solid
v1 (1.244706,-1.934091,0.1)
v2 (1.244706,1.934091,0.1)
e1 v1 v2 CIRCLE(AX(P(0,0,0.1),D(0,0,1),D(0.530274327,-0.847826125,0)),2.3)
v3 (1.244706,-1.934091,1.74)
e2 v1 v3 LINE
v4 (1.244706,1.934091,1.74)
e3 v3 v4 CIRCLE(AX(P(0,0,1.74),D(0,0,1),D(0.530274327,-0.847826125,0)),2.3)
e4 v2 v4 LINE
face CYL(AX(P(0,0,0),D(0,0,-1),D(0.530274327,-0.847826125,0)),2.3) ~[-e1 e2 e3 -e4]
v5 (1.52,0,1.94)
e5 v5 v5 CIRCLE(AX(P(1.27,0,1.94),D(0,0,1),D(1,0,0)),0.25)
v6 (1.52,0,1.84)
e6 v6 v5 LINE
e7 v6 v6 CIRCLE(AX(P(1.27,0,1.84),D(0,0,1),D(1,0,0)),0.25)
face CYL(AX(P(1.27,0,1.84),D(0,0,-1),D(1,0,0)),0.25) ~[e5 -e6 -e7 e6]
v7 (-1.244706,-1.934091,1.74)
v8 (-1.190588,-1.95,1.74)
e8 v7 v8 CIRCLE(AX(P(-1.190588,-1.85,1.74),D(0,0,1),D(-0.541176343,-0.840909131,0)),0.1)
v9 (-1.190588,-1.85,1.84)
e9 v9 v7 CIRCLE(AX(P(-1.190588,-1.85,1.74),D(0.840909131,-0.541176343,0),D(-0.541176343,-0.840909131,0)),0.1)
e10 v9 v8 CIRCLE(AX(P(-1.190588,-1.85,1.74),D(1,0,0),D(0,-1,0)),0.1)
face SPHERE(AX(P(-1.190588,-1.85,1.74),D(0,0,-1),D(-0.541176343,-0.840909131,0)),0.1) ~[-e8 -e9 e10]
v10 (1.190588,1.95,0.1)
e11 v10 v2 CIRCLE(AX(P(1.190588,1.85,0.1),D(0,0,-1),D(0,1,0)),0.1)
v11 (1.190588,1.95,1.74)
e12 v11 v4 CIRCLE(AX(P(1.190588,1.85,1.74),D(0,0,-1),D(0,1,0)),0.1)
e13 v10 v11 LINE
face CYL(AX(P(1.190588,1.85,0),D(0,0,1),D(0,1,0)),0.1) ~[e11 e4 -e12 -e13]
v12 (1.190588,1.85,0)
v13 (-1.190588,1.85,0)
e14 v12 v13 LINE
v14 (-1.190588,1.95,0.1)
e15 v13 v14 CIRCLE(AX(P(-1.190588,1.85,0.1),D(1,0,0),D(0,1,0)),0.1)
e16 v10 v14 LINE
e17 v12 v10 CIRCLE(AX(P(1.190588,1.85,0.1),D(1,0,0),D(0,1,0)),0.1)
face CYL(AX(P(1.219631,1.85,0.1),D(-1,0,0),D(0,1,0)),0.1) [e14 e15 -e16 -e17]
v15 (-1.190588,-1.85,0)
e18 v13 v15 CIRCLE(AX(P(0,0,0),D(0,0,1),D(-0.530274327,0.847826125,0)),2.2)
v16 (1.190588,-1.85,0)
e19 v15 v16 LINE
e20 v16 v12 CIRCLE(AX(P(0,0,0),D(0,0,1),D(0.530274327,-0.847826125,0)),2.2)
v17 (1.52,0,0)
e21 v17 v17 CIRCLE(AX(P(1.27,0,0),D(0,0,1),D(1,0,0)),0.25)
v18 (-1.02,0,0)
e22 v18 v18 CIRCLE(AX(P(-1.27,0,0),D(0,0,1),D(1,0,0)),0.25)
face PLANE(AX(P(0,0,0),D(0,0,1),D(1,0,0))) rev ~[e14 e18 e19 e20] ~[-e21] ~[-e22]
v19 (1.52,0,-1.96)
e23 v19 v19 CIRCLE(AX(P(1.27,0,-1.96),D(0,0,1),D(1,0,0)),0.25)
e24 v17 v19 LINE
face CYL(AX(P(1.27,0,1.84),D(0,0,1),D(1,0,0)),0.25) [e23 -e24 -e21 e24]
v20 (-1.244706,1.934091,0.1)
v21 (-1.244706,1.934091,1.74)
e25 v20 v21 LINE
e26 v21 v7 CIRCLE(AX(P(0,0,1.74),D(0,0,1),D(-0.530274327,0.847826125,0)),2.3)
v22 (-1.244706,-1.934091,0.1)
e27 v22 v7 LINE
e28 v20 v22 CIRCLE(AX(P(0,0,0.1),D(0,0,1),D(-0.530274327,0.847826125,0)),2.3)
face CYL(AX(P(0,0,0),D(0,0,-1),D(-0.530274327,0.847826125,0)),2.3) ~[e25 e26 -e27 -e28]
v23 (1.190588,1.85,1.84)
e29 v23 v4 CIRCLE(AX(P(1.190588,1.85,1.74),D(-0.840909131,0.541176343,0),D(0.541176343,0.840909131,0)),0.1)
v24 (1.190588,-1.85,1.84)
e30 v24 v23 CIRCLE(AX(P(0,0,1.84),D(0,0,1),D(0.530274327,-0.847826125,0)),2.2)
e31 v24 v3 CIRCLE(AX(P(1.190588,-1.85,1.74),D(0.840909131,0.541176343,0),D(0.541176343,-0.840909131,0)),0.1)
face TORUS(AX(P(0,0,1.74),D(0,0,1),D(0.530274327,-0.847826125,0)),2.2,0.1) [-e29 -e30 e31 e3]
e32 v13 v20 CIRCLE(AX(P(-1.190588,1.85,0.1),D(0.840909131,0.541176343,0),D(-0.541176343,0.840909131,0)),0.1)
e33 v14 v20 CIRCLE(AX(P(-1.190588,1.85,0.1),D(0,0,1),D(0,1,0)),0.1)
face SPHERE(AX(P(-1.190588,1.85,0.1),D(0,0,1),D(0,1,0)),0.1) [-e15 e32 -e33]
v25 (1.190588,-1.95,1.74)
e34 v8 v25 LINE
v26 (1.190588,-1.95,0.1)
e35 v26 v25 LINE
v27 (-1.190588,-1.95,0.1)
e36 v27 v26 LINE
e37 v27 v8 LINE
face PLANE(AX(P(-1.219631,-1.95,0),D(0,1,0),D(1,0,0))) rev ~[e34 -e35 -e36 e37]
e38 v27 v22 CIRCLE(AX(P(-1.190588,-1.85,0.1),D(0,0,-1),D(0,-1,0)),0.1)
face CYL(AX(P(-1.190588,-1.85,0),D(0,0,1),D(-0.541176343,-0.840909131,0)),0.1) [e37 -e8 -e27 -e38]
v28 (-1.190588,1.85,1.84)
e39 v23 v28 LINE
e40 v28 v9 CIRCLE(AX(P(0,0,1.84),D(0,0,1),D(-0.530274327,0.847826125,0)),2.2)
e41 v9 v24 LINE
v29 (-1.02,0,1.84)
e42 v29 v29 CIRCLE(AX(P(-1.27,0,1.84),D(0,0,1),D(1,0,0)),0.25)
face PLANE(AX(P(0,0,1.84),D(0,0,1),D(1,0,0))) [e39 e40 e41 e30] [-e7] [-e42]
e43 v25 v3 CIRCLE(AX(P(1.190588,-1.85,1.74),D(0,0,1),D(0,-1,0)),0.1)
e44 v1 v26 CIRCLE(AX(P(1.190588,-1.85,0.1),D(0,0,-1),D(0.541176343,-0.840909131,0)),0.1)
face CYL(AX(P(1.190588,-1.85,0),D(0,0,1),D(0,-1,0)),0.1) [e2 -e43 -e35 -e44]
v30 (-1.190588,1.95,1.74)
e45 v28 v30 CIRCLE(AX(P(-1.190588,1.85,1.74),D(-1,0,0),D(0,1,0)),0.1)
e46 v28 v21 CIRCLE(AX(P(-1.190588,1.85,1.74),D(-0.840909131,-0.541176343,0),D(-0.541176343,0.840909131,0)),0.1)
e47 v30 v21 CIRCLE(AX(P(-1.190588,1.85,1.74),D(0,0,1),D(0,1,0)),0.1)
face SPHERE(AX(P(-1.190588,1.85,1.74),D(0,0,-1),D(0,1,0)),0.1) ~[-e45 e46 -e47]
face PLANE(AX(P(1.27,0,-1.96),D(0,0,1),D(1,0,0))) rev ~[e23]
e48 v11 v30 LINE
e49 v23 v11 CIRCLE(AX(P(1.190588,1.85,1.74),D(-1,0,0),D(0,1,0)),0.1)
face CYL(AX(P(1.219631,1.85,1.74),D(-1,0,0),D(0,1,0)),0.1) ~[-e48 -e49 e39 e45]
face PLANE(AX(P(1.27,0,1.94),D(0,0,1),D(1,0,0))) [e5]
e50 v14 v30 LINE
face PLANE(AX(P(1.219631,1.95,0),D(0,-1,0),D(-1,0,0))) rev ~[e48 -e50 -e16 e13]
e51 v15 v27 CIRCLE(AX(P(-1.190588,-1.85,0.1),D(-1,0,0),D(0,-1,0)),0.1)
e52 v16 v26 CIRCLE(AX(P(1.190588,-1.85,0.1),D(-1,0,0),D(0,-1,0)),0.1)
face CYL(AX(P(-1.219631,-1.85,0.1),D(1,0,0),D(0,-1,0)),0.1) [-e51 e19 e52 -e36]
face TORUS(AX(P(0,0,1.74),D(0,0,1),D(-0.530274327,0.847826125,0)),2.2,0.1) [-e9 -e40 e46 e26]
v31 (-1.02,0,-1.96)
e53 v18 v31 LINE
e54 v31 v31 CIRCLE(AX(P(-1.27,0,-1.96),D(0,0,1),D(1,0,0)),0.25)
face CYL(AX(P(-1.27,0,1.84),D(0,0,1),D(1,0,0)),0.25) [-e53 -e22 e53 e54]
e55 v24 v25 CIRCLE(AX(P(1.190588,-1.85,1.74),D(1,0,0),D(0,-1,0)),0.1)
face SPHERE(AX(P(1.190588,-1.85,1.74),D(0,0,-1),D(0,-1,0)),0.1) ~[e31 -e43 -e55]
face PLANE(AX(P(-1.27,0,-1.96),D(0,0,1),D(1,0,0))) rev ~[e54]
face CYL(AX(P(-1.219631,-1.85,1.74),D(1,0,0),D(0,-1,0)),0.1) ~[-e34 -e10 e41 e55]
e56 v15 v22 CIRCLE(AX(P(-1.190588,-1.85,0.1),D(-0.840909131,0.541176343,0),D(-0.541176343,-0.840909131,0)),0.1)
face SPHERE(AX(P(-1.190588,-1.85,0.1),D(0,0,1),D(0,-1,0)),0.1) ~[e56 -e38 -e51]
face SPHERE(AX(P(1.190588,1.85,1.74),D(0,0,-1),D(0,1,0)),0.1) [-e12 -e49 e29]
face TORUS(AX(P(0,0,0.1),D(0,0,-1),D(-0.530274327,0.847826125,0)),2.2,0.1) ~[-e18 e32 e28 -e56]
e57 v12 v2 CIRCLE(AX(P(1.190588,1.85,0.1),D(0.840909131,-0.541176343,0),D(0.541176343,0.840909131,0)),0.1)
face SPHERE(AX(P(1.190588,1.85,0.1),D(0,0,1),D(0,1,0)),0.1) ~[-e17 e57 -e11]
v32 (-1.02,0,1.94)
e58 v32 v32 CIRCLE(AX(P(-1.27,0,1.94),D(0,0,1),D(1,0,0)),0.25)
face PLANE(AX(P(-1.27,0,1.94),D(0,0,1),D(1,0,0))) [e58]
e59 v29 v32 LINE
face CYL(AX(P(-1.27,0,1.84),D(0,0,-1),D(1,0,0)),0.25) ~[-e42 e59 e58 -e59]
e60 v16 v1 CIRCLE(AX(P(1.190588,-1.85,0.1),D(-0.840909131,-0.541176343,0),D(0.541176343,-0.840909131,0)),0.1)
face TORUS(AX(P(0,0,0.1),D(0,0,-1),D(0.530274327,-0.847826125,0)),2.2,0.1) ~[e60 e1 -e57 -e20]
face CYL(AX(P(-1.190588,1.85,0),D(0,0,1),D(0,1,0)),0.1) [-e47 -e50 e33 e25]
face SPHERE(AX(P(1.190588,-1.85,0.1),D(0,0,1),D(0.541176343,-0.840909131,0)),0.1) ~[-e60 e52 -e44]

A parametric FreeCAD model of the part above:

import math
import FreeCAD as App
import Part
import Sketcher

doc = App.newDocument("Part")
body = doc.addObject("PartDesign::Body", "Body")

# Sketch on XY plane
sketch1 = doc.addObject("Sketcher::SketchObject", "Sketch")
body.addObject(sketch1)
sketch1.AttachmentSupport = (doc.XY_Plane, [""])
sketch1.MapMode = "FlatFace"
sketch1.addGeometry([
    Part.LineSegment(App.Vector(1.2, 1.9, 0), App.Vector(-1.2, 1.9, 0)),
    Part.ArcOfCircle(Part.Circle(App.Vector(0, 0, 0), App.Vector(0, 0, 1), 2.3), math.radians(122), math.radians(238)),
    Part.LineSegment(App.Vector(-1.2, -1.9, 0), App.Vector(1.2, -1.9, 0)),
    Part.ArcOfCircle(Part.Circle(App.Vector(0, 0, 0), App.Vector(0, 0, 1), 2.3), math.radians(-58), math.radians(58)),
], False)
sketch1.addConstraint([
    Sketcher.Constraint("Coincident", 0, 2, 1, 1),
    Sketcher.Constraint("Coincident", 1, 2, 2, 1),
    Sketcher.Constraint("Coincident", 2, 2, 3, 1),
    Sketcher.Constraint("Coincident", 3, 2, 0, 1),
    Sketcher.Constraint("Horizontal", 0),
    Sketcher.Constraint("Horizontal", 2),
    Sketcher.Constraint("Coincident", 1, 3, -1, 1),
    Sketcher.Constraint("Coincident", 3, 3, -1, 1),
    Sketcher.Constraint("Equal", 1, 3),
    Sketcher.Constraint("Vertical", 0, 2, 1, 2),
    Sketcher.Constraint("Radius", 1, 2.3),
    Sketcher.Constraint("DistanceY", 1, 2, 0, 2, 3.9),
])
pad1 = doc.addObject("PartDesign::Pad", "Pad")
body.addObject(pad1)
pad1.Profile = sketch1
pad1.Length = 1.84
doc.recompute()

fillet = doc.addObject("PartDesign::Fillet", "Fillet")
body.addObject(fillet)
fillet.Base = (pad1, ["Edge1"])
fillet.UseAllEdges = True
fillet.Radius = 0.1

# Sketch on XY plane
sketch2 = doc.addObject("Sketcher::SketchObject", "Sketch001")
body.addObject(sketch2)
sketch2.AttachmentSupport = (doc.XY_Plane, [""])
sketch2.MapMode = "FlatFace"
sketch2.AttachmentOffset = App.Placement(App.Vector(0, 0, 1.84), App.Rotation())
sketch2.addGeometry([
    Part.Circle(App.Vector(-1.27, 0, 0), App.Vector(0, 0, 1), 0.25),
    Part.Circle(App.Vector(1.27, 0, 0), App.Vector(0, 0, 1), 0.25),
], False)
sketch2.addConstraint([
    Sketcher.Constraint("Equal", 0, 1),
    Sketcher.Constraint("Symmetric", 0, 3, 1, 3, -1, 1),
    Sketcher.Constraint("PointOnObject", 0, 3, -1),
    Sketcher.Constraint("Diameter", 0, 0.5),
    Sketcher.Constraint("DistanceX", 0, 3, -1, 1, 1.27),
])
pad2 = doc.addObject("PartDesign::Pad", "Pad001")
body.addObject(pad2)
pad2.Profile = sketch2
pad2.Type = "TwoLengths"
pad2.Length = 0.1
pad2.Length2 = 3.8

doc.recompute()
